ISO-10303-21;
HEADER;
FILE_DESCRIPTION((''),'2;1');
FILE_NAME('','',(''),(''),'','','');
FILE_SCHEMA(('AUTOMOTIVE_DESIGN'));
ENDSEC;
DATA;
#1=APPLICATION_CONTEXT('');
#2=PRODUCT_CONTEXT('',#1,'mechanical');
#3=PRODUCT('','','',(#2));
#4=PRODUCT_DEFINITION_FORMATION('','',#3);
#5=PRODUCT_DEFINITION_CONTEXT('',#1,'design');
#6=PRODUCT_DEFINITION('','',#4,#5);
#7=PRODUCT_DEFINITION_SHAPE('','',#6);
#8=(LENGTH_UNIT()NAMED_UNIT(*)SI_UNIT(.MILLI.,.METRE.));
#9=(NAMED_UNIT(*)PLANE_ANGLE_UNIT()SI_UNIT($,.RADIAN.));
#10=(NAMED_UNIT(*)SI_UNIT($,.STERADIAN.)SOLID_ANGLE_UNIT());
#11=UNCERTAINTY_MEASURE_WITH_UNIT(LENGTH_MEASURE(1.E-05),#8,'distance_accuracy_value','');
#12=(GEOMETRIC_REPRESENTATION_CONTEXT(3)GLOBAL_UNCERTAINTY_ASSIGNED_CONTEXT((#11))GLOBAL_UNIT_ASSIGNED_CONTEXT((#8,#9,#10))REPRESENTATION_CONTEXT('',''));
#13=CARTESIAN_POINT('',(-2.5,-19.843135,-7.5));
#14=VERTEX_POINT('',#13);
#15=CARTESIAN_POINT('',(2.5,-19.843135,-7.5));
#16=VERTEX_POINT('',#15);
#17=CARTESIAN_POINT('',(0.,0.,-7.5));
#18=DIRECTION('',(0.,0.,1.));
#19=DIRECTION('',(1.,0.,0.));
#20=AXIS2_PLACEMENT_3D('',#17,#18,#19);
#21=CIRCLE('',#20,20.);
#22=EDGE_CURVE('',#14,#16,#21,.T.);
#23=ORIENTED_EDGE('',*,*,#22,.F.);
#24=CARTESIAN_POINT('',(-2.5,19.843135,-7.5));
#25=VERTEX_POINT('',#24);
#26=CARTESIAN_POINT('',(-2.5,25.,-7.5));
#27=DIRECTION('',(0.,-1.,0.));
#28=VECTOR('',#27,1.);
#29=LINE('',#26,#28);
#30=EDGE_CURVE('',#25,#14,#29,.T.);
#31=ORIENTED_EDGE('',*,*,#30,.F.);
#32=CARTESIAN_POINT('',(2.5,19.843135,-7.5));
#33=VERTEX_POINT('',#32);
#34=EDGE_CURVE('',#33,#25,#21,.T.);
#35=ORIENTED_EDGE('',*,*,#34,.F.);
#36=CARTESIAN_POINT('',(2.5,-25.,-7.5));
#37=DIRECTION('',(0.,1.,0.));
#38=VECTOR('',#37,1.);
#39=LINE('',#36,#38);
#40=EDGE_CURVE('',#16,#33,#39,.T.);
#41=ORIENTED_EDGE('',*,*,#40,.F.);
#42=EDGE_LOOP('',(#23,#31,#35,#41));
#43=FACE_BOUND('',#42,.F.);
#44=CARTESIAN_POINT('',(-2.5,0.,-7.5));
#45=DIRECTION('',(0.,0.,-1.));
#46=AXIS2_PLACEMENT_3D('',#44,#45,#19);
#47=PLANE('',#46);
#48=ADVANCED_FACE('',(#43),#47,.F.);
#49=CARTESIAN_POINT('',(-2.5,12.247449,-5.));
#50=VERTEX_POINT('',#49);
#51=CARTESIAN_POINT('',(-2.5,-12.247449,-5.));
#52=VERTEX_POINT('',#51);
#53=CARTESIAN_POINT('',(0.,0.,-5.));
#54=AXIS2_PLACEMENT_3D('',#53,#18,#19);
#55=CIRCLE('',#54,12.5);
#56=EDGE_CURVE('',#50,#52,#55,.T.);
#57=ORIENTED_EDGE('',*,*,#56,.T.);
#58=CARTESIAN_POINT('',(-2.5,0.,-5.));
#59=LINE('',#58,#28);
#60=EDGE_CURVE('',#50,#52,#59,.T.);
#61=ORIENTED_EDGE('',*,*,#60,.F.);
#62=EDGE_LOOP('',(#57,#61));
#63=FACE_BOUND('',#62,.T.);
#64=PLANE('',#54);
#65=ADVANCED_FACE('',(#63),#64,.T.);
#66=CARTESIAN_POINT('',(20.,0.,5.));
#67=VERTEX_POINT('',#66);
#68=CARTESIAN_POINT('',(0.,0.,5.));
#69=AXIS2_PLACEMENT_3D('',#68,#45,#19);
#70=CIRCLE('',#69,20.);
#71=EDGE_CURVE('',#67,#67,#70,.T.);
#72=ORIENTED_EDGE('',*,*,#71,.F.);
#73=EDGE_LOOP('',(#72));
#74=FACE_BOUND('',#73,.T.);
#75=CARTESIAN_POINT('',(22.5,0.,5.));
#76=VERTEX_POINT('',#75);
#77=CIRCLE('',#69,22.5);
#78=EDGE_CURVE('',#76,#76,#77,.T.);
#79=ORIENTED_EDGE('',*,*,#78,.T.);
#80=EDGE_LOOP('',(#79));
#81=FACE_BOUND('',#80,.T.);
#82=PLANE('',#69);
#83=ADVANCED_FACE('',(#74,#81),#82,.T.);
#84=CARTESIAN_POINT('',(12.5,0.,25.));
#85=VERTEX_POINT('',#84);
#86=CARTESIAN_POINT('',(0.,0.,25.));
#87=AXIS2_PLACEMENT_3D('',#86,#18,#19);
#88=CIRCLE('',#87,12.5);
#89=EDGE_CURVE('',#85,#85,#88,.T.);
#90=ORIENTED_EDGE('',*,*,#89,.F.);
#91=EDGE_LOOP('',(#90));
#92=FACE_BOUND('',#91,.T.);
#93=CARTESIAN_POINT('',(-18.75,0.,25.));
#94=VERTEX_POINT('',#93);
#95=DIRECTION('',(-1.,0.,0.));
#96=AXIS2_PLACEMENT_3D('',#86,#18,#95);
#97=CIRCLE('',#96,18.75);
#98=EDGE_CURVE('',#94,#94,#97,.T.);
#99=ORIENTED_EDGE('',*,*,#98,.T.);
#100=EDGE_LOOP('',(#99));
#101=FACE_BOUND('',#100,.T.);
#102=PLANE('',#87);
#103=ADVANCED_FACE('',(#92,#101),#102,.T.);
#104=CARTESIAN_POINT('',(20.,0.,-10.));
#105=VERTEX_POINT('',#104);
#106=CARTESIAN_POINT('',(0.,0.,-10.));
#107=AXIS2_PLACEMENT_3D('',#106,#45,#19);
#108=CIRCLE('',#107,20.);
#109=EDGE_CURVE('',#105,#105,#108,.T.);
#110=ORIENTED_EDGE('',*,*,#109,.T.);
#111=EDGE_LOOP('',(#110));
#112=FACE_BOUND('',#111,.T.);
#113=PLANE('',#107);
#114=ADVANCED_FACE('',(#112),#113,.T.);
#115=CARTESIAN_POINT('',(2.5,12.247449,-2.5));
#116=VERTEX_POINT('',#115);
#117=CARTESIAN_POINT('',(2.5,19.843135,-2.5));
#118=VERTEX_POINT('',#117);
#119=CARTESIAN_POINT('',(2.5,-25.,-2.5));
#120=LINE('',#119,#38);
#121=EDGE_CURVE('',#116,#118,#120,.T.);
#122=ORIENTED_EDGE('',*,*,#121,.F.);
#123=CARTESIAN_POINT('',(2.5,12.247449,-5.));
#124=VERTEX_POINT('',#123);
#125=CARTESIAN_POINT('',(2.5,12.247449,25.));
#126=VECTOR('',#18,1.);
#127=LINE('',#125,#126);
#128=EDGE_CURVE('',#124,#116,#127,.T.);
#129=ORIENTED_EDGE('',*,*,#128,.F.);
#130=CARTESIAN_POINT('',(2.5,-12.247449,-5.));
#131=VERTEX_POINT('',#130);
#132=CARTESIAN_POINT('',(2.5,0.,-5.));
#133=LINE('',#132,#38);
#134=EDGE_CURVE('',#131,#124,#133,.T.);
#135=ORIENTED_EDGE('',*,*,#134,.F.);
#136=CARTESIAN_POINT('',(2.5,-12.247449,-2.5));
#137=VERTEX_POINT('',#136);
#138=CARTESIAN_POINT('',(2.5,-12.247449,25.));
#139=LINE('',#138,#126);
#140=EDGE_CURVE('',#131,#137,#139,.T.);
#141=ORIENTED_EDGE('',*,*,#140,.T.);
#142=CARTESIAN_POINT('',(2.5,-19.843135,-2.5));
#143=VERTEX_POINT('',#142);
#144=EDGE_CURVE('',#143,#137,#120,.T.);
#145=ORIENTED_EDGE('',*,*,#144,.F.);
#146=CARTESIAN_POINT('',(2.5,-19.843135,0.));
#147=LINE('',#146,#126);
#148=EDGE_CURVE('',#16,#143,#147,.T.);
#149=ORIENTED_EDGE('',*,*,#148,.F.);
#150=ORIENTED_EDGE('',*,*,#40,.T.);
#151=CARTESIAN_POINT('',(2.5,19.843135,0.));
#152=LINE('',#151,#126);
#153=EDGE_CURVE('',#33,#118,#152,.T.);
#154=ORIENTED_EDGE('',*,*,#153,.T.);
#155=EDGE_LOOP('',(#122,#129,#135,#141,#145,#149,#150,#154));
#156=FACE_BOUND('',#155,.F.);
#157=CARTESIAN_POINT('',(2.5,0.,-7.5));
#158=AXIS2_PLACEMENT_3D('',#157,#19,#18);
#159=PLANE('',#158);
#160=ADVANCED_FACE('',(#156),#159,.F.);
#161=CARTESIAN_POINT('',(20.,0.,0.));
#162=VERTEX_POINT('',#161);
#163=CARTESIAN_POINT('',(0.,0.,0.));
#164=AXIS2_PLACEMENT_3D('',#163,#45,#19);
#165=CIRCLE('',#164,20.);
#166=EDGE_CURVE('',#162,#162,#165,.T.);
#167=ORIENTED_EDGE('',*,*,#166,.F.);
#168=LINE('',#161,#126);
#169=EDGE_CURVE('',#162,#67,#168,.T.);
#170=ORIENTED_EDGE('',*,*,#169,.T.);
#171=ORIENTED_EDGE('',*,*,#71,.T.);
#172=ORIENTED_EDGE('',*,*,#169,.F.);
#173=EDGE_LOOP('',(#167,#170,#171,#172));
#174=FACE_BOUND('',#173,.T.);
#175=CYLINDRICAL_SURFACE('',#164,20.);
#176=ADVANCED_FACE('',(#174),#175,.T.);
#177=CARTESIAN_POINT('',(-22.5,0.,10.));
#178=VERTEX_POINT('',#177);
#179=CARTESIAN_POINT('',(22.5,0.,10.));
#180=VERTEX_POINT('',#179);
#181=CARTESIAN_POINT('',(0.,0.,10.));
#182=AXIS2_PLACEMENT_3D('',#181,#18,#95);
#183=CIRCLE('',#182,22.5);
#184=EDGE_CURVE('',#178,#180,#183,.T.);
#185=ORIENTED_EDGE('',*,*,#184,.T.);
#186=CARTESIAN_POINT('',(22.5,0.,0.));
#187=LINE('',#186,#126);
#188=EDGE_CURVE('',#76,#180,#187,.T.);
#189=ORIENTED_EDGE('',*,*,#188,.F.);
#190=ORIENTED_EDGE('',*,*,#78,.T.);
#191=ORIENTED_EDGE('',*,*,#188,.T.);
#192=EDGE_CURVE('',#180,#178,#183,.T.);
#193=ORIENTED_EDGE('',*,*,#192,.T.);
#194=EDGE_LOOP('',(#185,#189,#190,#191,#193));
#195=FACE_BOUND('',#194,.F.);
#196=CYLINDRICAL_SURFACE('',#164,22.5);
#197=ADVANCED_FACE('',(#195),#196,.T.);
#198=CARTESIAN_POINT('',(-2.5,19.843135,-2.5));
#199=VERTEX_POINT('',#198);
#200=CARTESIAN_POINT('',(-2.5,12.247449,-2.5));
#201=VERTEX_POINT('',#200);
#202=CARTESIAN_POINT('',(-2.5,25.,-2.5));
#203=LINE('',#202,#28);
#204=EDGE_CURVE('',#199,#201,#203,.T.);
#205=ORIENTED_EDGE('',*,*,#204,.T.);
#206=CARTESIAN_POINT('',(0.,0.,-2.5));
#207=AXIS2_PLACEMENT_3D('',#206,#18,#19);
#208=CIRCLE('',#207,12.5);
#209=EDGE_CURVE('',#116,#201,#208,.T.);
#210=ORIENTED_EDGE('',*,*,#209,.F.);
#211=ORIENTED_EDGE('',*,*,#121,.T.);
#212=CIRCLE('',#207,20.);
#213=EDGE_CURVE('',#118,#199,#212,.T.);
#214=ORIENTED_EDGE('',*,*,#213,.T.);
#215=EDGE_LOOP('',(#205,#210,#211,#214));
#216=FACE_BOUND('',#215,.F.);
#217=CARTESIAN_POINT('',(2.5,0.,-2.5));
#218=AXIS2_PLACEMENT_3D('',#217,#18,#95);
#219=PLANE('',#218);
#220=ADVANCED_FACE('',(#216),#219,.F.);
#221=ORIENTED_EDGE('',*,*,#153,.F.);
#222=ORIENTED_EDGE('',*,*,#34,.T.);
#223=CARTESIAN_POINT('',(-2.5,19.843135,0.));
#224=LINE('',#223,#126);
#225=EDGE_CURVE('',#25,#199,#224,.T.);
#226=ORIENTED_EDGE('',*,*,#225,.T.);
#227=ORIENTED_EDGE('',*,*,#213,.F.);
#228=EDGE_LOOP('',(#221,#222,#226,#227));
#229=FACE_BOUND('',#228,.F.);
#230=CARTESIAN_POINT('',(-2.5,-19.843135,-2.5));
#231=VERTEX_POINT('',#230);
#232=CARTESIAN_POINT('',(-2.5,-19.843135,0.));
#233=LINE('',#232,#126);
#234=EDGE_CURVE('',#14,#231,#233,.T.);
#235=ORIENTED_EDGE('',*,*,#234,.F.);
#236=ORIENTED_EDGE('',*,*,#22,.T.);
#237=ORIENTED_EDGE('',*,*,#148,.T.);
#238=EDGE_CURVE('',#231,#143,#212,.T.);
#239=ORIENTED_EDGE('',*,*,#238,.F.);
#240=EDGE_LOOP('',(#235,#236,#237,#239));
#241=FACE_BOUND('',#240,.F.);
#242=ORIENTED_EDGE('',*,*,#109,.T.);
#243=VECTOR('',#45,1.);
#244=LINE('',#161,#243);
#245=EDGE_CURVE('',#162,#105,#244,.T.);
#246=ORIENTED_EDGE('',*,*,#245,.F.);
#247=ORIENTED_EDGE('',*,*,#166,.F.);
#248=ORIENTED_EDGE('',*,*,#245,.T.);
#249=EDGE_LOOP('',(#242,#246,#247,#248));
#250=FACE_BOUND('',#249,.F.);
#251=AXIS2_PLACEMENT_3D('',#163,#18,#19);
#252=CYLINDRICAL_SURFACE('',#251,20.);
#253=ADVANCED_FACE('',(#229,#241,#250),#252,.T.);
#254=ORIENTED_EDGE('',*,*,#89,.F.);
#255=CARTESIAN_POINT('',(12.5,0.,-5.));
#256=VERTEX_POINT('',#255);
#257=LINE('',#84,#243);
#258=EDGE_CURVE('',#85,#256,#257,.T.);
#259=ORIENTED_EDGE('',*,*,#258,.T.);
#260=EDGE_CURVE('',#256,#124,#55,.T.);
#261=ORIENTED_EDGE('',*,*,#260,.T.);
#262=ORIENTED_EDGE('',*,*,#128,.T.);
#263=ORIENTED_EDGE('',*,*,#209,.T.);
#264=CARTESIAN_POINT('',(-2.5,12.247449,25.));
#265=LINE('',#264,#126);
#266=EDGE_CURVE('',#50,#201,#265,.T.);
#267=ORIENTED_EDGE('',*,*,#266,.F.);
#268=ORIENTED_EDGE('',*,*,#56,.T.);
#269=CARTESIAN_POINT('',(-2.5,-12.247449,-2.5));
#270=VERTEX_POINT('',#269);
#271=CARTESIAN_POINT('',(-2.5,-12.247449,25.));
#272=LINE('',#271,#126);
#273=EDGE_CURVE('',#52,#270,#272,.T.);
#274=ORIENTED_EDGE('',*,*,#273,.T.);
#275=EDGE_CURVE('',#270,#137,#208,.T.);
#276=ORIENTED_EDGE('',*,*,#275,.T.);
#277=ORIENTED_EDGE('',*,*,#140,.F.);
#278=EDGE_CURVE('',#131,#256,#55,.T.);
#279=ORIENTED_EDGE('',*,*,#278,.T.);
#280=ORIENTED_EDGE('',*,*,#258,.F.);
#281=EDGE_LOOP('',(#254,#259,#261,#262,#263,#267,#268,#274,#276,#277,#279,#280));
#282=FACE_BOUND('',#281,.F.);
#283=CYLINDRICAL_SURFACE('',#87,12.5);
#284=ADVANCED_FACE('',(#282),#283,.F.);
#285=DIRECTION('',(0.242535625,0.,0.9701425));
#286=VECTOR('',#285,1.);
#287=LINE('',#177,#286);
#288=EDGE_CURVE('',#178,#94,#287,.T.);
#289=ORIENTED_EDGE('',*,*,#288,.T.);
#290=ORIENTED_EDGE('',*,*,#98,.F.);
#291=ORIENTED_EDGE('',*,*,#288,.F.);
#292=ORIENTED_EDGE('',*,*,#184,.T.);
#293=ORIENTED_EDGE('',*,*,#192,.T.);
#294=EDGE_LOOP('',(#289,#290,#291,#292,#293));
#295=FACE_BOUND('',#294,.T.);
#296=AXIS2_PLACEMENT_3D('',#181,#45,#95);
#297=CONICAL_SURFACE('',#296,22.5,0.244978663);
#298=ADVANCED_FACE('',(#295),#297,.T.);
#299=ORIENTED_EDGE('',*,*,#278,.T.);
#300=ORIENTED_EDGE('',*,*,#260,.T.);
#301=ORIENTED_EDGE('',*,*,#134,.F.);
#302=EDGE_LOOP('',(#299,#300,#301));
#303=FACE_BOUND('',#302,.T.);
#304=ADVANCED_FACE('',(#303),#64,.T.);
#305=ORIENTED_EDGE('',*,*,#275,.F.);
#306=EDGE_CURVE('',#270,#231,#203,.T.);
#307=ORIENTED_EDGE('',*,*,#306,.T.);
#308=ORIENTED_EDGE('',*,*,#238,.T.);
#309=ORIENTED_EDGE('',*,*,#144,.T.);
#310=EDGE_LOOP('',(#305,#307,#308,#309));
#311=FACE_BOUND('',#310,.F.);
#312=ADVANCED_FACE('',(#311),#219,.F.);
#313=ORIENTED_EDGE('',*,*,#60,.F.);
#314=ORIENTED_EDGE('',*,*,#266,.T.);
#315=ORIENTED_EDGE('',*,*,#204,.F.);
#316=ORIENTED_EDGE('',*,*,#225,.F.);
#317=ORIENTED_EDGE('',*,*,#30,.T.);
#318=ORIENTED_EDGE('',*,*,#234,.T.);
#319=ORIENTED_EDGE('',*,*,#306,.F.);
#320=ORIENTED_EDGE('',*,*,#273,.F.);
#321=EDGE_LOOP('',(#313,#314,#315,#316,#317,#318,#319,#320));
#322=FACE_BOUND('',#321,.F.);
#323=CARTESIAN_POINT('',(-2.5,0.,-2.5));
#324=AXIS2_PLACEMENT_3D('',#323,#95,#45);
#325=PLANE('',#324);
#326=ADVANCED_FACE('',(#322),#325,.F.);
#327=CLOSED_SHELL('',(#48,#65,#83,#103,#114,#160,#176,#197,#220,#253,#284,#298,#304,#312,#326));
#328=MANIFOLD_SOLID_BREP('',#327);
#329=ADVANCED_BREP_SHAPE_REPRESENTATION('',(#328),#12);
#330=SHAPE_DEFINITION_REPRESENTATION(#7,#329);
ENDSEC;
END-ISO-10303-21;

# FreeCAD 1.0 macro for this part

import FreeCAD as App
import Part
import Sketcher
Q = App.Units.Quantity


def add_polygon(sketch, points):
    """Adds a closed chain of lines whose ends are joined by coincident constraints."""
    first, n = sketch.GeometryCount, len(points)
    for a, b in zip(points, points[1:] + points[:1]):
        sketch.addGeometry(Part.LineSegment(App.Vector(*a, 0), App.Vector(*b, 0)), False)
    for i in range(n):
        sketch.addConstraint(Sketcher.Constraint("Coincident", first + i, 2, first + (i + 1) % n, 1))

doc = App.newDocument("Part")
params = doc.addObject("Spreadsheet::Sheet", "Params")
for row, (alias, value) in enumerate([
    ("sketch1_diameter", "45 mm"),
    ("pad1_length", "25 mm"),
    ("sketch2_diameter", "45 mm"),
    ("sketch2_diameter2", "40 mm"),
    ("pocket1_length", "5 mm"),
    ("sketch3_width", "5 mm"),
    ("sketch3_height", "20 mm"),
    ("groove_angle", "360 deg"),
    ("sketch4_diameter", "40 mm"),
    ("pad2_length", "10 mm"),
    ("sketch5_diameter", "25 mm"),
    ("pocket2_length", "30 mm"),
    ("sketch6_width", "5 mm"),
    ("pocket3_length", "50 mm"),
], start=1):
    params.set(f"A{row}", alias)
    params.set(f"B{row}", "=" + value)
    params.setAlias(f"B{row}", alias)

body = doc.addObject("PartDesign::Body", "Body")

# Sketch on XY plane
sketch1 = body.newObject("Sketcher::SketchObject", "Sketch")
sketch1.AttachmentSupport = (doc.getObject("XY_Plane"), [""])
sketch1.MapMode = "FlatFace"
sketch1.addGeometry(Part.Circle(App.Vector(0, 0, 0), App.Vector(0, 0, 1), 22), False)
sketch1.addConstraint(Sketcher.Constraint("Coincident", 0, 3, -1, 1))
sketch1.addConstraint(Sketcher.Constraint("Diameter", 0, Q("45 mm")))
sketch1.setExpression("Constraints[1]", "Params.sketch1_diameter")
pad1 = body.newObject("PartDesign::Pad", "Pad")
pad1.Profile = sketch1
pad1.setExpression("Length", "Params.pad1_length")

# Sketch on XY plane
sketch2 = body.newObject("Sketcher::SketchObject", "Sketch001")
sketch2.AttachmentSupport = (doc.getObject("XY_Plane"), [""])
sketch2.MapMode = "FlatFace"
sketch2.addGeometry(Part.Circle(App.Vector(0, 0, 0), App.Vector(0, 0, 1), 22), False)
sketch2.addGeometry(Part.Circle(App.Vector(0, 0, 0), App.Vector(0, 0, 1), 20), False)
sketch2.addConstraint(Sketcher.Constraint("Coincident", 0, 3, -1, 1))
sketch2.addConstraint(Sketcher.Constraint("Coincident", 1, 3, -1, 1))
sketch2.addConstraint(Sketcher.Constraint("Diameter", 0, Q("45 mm")))
sketch2.addConstraint(Sketcher.Constraint("Diameter", 1, Q("40 mm")))
sketch2.setExpression("Constraints[2]", "Params.sketch2_diameter")
sketch2.setExpression("Constraints[3]", "Params.sketch2_diameter2")
pocket1 = body.newObject("PartDesign::Pocket", "Pocket")
pocket1.Profile = sketch2
pocket1.setExpression("Length", "Params.pocket1_length")
pocket1.Reversed = True

# Sketch on XZ plane
sketch3 = body.newObject("Sketcher::SketchObject", "Sketch002")
sketch3.AttachmentSupport = (doc.getObject("XZ_Plane"), [""])
sketch3.MapMode = "FlatFace"
add_polygon(sketch3, [(-22, 30), (-22, 10), (-18, 30)])  # lines 0-2
sketch3.addConstraint(Sketcher.Constraint("Vertical", 0))
sketch3.addConstraint(Sketcher.Constraint("Horizontal", 2))
sketch3.addConstraint(Sketcher.Constraint("DistanceX", 2, 2, 2, 1, Q("5 mm")))
sketch3.addConstraint(Sketcher.Constraint("DistanceY", 0, 2, 0, 1, Q("20 mm")))
sketch3.addConstraint(Sketcher.Constraint("DistanceY", -1, 1, 0, 2, Q("10 mm")))
sketch3.addConstraint(Sketcher.Constraint("DistanceX", 0, 2, -1, 1, Q("22.5 mm")))
sketch3.setExpression("Constraints[5]", "Params.sketch3_width")
sketch3.setExpression("Constraints[6]", "Params.sketch3_height")
groove = body.newObject("PartDesign::Groove", "Groove")
groove.Profile = sketch3
groove.ReferenceAxis = (sketch3, ["V_Axis"])
groove.setExpression("Angle", "Params.groove_angle")

# Sketch on XY plane
sketch4 = body.newObject("Sketcher::SketchObject", "Sketch003")
sketch4.AttachmentSupport = (doc.getObject("XY_Plane"), [""])
sketch4.MapMode = "FlatFace"
sketch4.addGeometry(Part.Circle(App.Vector(0, 0, 0), App.Vector(0, 0, 1), 20), False)
sketch4.addConstraint(Sketcher.Constraint("Coincident", 0, 3, -1, 1))
sketch4.addConstraint(Sketcher.Constraint("Diameter", 0, Q("40 mm")))
sketch4.setExpression("Constraints[1]", "Params.sketch4_diameter")
pad2 = body.newObject("PartDesign::Pad", "Pad001")
pad2.Profile = sketch4
pad2.setExpression("Length", "Params.pad2_length")
pad2.Reversed = True

# Sketch on XY plane
sketch5 = body.newObject("Sketcher::SketchObject", "Sketch004")
sketch5.AttachmentSupport = (doc.getObject("XY_Plane"), [""])
sketch5.MapMode = "FlatFace"
sketch5.AttachmentOffset = App.Placement(App.Vector(0, 0, 25), App.Rotation())
sketch5.addGeometry(Part.Circle(App.Vector(0, 0, 0), App.Vector(0, 0, 1), 12), False)
sketch5.addConstraint(Sketcher.Constraint("Coincident", 0, 3, -1, 1))
sketch5.addConstraint(Sketcher.Constraint("Diameter", 0, Q("25 mm")))
sketch5.setExpression("Constraints[1]", "Params.sketch5_diameter")
pocket2 = body.newObject("PartDesign::Pocket", "Pocket001")
pocket2.Profile = sketch5
pocket2.setExpression("Length", "Params.pocket2_length")

# Sketch on XZ plane
sketch6 = body.newObject("Sketcher::SketchObject", "Sketch005")
sketch6.AttachmentSupport = (doc.getObject("XZ_Plane"), [""])
sketch6.MapMode = "FlatFace"
add_polygon(sketch6, [(2, -2), (-2, -2), (-2, -8), (2, -8)])  # lines 0-3
sketch6.addConstraint(Sketcher.Constraint("Horizontal", 0))
sketch6.addConstraint(Sketcher.Constraint("Vertical", 1))
sketch6.addConstraint(Sketcher.Constraint("Horizontal", 2))
sketch6.addConstraint(Sketcher.Constraint("Vertical", 3))
sketch6.addConstraint(Sketcher.Constraint("Equal", 2, 1))
sketch6.addConstraint(Sketcher.Constraint("DistanceX", 0, 2, 0, 1, Q("5 mm")))
sketch6.addConstraint(Sketcher.Constraint("DistanceX", 0, 2, -1, 1, Q("2.5 mm")))
sketch6.addConstraint(Sketcher.Constraint("DistanceY", 0, 2, -1, 1, Q("2.5 mm")))
sketch6.setExpression("Constraints[9]", "Params.sketch6_width")
pocket3 = body.newObject("PartDesign::Pocket", "Pocket002")
pocket3.Profile = sketch6
pocket3.setExpression("Length", "Params.pocket3_length")
pocket3.Midplane = True

doc.recompute()
